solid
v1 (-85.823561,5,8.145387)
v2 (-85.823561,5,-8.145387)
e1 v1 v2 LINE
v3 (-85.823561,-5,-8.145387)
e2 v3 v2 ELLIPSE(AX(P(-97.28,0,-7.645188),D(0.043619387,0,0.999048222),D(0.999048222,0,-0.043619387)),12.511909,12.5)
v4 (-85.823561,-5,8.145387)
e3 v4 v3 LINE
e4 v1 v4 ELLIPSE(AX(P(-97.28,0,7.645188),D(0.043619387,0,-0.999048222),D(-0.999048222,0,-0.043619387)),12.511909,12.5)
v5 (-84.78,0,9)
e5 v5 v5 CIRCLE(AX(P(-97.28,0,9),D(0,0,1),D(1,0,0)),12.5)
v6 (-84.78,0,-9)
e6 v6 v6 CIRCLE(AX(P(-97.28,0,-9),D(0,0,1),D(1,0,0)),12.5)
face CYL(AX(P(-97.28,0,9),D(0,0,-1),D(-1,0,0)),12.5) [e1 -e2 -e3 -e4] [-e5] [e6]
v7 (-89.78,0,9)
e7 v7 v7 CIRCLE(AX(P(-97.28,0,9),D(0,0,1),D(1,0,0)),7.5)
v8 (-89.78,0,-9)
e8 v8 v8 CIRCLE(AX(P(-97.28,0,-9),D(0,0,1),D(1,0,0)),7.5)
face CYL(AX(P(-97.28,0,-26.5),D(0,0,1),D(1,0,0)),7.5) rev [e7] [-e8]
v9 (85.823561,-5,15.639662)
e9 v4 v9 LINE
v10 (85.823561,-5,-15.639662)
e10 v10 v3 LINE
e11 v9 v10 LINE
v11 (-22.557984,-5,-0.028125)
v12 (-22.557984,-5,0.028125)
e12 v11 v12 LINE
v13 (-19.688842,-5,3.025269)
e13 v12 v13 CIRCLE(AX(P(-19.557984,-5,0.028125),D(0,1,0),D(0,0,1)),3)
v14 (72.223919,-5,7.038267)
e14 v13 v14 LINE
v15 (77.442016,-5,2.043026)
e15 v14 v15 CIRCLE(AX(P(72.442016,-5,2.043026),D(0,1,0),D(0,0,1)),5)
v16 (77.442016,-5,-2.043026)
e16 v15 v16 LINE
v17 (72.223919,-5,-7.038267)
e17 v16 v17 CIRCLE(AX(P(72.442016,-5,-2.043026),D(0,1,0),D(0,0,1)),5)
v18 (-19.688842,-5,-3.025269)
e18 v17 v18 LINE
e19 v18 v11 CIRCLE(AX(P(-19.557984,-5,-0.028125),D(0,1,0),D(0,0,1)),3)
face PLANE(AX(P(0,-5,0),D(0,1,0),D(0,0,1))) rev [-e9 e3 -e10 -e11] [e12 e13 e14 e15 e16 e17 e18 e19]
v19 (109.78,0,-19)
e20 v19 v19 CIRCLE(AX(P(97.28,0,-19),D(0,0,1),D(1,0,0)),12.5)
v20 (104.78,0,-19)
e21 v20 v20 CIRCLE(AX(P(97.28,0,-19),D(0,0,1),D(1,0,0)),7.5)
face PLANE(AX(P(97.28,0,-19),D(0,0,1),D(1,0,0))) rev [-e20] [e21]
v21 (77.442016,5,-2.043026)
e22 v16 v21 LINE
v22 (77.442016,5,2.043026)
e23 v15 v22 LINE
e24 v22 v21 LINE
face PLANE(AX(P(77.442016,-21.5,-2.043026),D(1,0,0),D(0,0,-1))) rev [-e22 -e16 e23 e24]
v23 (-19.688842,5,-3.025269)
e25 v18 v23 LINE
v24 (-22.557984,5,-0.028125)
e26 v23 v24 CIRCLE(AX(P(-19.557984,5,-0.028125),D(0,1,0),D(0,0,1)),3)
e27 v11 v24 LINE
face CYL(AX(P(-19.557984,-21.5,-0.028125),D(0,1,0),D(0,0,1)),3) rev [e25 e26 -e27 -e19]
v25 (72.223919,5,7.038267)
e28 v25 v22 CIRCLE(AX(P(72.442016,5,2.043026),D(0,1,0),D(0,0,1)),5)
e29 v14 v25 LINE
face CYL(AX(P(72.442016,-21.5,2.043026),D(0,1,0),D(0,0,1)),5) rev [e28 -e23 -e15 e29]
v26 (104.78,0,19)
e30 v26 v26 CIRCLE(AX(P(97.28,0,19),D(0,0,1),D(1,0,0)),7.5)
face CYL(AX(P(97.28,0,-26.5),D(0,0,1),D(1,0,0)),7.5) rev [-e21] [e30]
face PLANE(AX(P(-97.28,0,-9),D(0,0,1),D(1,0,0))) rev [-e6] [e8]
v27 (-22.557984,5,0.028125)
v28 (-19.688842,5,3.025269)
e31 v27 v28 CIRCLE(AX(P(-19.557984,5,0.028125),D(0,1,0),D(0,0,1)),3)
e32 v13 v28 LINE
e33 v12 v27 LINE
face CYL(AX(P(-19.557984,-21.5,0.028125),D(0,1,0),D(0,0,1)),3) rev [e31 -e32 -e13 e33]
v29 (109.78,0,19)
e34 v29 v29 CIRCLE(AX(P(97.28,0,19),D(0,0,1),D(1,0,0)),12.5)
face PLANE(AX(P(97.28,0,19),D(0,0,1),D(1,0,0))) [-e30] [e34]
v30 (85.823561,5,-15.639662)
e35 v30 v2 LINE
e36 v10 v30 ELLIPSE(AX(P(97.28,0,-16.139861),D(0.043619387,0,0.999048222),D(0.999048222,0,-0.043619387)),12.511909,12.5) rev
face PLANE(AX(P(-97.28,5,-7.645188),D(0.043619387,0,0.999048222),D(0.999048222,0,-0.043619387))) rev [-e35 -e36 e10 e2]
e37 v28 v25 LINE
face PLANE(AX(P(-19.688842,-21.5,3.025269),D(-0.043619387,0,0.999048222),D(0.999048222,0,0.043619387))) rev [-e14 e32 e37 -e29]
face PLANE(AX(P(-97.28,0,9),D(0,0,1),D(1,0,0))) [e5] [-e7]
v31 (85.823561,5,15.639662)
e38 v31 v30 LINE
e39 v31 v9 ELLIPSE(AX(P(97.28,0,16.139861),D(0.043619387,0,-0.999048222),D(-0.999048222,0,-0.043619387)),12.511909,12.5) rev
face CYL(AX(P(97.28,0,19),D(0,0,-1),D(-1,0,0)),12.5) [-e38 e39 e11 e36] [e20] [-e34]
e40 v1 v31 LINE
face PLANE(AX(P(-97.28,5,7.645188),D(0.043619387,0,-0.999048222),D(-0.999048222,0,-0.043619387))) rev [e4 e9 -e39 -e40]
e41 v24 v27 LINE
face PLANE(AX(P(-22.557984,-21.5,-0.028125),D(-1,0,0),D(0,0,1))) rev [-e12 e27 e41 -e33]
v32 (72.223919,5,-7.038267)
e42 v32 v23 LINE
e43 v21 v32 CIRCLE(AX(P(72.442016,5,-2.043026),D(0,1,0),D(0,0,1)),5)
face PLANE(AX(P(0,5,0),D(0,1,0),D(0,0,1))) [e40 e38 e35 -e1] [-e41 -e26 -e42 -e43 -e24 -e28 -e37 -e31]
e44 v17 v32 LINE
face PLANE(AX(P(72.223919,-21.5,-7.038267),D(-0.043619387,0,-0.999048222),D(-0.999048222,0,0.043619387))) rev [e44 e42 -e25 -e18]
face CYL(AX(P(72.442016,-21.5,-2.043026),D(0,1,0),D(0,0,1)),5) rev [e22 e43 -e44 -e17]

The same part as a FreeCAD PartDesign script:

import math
import FreeCAD as App
import Part
import Sketcher
from FreeCAD import Vector
Q = App.Units.Quantity


def add_polygon(sketch, points):
    """Adds a closed chain of lines whose ends are joined by coincident constraints."""
    first, n = sketch.GeometryCount, len(points)
    for a, b in zip(points, points[1:] + points[:1]):
        sketch.addGeometry(Part.LineSegment(App.Vector(*a, 0), App.Vector(*b, 0)), False)
    for i in range(n):
        sketch.addConstraint(Sketcher.Constraint("Coincident", first + i, 2, first + (i + 1) % n, 1))

doc = App.newDocument("Part")
body = doc.addObject("PartDesign::Body", "Body")

# Sketch on XY plane
sketch1 = body.newObject("Sketcher::SketchObject", "Sketch")
sketch1.AttachmentSupport = (doc.getObject("XY_Plane"), [""])
sketch1.MapMode = "FlatFace"
sketch1.addGeometry(Part.Circle(Vector(-97.28, 0, 0), Vector(0, 0, 1), 12.5), False)
sketch1.addConstraint([
    Sketcher.Constraint("PointOnObject", 0, 3, -1),
    Sketcher.Constraint("Diameter", 0, 25.0),
    Sketcher.Constraint("DistanceX", 0, 3, -1, 1, 97.28),
])
pad1 = body.newObject("PartDesign::Pad", "Pad")
pad1.Profile = sketch1
pad1.Length = 18
pad1.Midplane = True
body2 = doc.addObject("PartDesign::Body", "Body001")

# Sketch on XY plane
sketch2 = body2.newObject("Sketcher::SketchObject", "Sketch001")
sketch2.AttachmentSupport = (doc.getObject("XY_Plane001"), [""])
sketch2.MapMode = "FlatFace"
sketch2.addGeometry(Part.Circle(Vector(97.28, 0, 0), Vector(0, 0, 1), 12.5), False)
sketch2.addConstraint([
    Sketcher.Constraint("PointOnObject", 0, 3, -1),
    Sketcher.Constraint("Diameter", 0, 25.0),
    Sketcher.Constraint("DistanceX", -1, 1, 0, 3, 97.28),
])
pad2 = body2.newObject("PartDesign::Pad", "Pad001")
pad2.Profile = sketch2
pad2.Length = 38
pad2.Midplane = True
body.AllowCompound = True
doc.recompute()

boolean = body.newObject("PartDesign::Boolean", "Boolean")
boolean.Type = "Fuse"
boolean.addObjects([body2])

# Sketch on XZ plane
sketch3 = body.newObject("Sketcher::SketchObject", "Sketch002")
sketch3.AttachmentSupport = (doc.getObject("XZ_Plane"), [""])
sketch3.MapMode = "FlatFace"
add_polygon(sketch3, [(97.28, -16.139861), (-97.28, -7.645188), (-97.28, 7.645188), (97.28, 16.139861)])  # lines 0-3
sketch3.addConstraint([
    Sketcher.Constraint("Vertical", 1),
    Sketcher.Constraint("Vertical", 3),
    Sketcher.Constraint("Equal", 0, 2),
    Sketcher.Constraint("Angle", 0, Q("177.5 deg")),
    Sketcher.Constraint("DistanceX", 0, 2, -1, 1, 97.28),
    Sketcher.Constraint("DistanceX", -1, 1, 2, 2, 97.28),
    Sketcher.Constraint("DistanceY", 3, 2, 3, 1, 32.279722),
    Sketcher.Constraint("DistanceY", -1, 1, 2, 2, 16.139861),
])
pad3 = body.newObject("PartDesign::Pad", "Pad002")
pad3.Profile = sketch3
pad3.Length = 10
pad3.Midplane = True

# Sketch on XZ plane
sketch4 = body.newObject("Sketcher::SketchObject", "Sketch003")
sketch4.AttachmentSupport = (doc.getObject("XZ_Plane"), [""])
sketch4.MapMode = "FlatFace"
sketch4.AttachmentOffset = App.Placement(Vector(0, 0, -5), App.Rotation())
sketch4.addGeometry([
    Part.LineSegment(Vector(72.223919, -7.038267, 0), Vector(-19.688842, -3.025269, 0)),  # 0
    Part.ArcOfCircle(Part.Circle(Vector(-19.557984, -0.028125, 0), Vector(0, 0, 1), 3), math.radians(180), math.radians(267.5)),  # 1
    Part.LineSegment(Vector(-22.557984, -0.028125, 0), Vector(-22.557984, 0.028125, 0)),  # 2
    Part.ArcOfCircle(Part.Circle(Vector(-19.557984, 0.028125, 0), Vector(0, 0, 1), 3), math.radians(92.5), math.radians(180)),  # 3
    Part.LineSegment(Vector(-19.688842, 3.025269, 0), Vector(72.223919, 7.038267, 0)),  # 4
    Part.ArcOfCircle(Part.Circle(Vector(72.442016, 2.043026, 0), Vector(0, 0, 1), 5), math.radians(0), math.radians(92.5)),  # 5
    Part.LineSegment(Vector(77.442016, 2.043026, 0), Vector(77.442016, -2.043026, 0)),  # 6
    Part.ArcOfCircle(Part.Circle(Vector(72.442016, -2.043026, 0), Vector(0, 0, 1), 5), math.radians(-92.5), math.radians(0)),  # 7
], False)
sketch4.addConstraint([
    Sketcher.Constraint("Tangent", 0, 2, 1, 2),
    Sketcher.Constraint("Tangent", 1, 1, 2, 1),
    Sketcher.Constraint("Tangent", 2, 2, 3, 2),
    Sketcher.Constraint("Tangent", 3, 1, 4, 1),
    Sketcher.Constraint("Tangent", 4, 2, 5, 2),
    Sketcher.Constraint("Tangent", 5, 1, 6, 1),
    Sketcher.Constraint("Tangent", 6, 2, 7, 2),
    Sketcher.Constraint("Tangent", 7, 1, 0, 1),
    Sketcher.Constraint("Vertical", 2),
    Sketcher.Constraint("Vertical", 6),
    Sketcher.Constraint("Equal", 1, 3),
    Sketcher.Constraint("Equal", 5, 7),
    Sketcher.Constraint("Symmetric", 0, 2, 3, 1, -1),
    Sketcher.Constraint("Radius", 1, 3.0),
    Sketcher.Constraint("Radius", 5, 5.0),
    Sketcher.Constraint("Angle", 0, Q("177.5 deg")),
    Sketcher.Constraint("DistanceX", 3, 3, 5, 3, 92.0),
    Sketcher.Constraint("DistanceY", 2, 1, 2, 2, 0.05625),
    Sketcher.Constraint("DistanceX", -1, 1, 4, 2, 72.223919),
])
pocket1 = body.newObject("PartDesign::Pocket", "Pocket")
pocket1.Profile = sketch4
pocket1.Length = 53
pocket1.Midplane = True

# Sketch on XY plane
sketch5 = body.newObject("Sketcher::SketchObject", "Sketch004")
sketch5.AttachmentSupport = (doc.getObject("XY_Plane"), [""])
sketch5.MapMode = "FlatFace"
sketch5.addGeometry([
    Part.Circle(Vector(-97.28, 0, 0), Vector(0, 0, 1), 7.5),
    Part.Circle(Vector(97.28, 0, 0), Vector(0, 0, 1), 7.5),
], False)
sketch5.addConstraint([
    Sketcher.Constraint("Equal", 0, 1),
    Sketcher.Constraint("Symmetric", 0, 3, 1, 3, -1, 1),
    Sketcher.Constraint("PointOnObject", 0, 3, -1),
    Sketcher.Constraint("Diameter", 0, 15.0),
    Sketcher.Constraint("DistanceX", 0, 3, -1, 1, 97.28),
])
pocket2 = body.newObject("PartDesign::Pocket", "Pocket001")
pocket2.Profile = sketch5
pocket2.Length = 53
pocket2.Midplane = True

doc.recompute()
